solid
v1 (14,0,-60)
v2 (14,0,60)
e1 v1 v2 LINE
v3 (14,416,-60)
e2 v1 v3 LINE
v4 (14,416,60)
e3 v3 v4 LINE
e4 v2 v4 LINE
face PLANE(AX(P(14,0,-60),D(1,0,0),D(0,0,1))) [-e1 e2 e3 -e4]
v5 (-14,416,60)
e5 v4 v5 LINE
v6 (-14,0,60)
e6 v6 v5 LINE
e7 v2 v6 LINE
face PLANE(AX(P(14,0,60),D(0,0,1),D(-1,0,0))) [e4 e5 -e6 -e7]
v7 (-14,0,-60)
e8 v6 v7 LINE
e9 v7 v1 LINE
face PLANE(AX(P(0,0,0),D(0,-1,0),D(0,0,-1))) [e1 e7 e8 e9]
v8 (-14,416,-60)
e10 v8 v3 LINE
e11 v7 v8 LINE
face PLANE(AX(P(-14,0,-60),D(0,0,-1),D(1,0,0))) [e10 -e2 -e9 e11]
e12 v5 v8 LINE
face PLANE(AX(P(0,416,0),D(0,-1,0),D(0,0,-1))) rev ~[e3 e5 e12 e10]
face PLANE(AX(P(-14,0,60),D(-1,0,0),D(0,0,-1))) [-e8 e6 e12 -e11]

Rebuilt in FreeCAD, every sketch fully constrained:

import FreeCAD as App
import Part
import Sketcher

doc = App.newDocument("Part")
body = doc.addObject("PartDesign::Body", "Body")

sketch1 = body.newObject("Sketcher::SketchObject", "Sketch")
sketch1.AttachmentSupport = (doc.getObject("XZ_Plane"), [""])
sketch1.MapMode = "FlatFace"
sketch1.addGeometry(Part.LineSegment(App.Vector(-14, 60, 0), App.Vector(-14, -60, 0)), False)
sketch1.addGeometry(Part.LineSegment(App.Vector(-14, -60, 0), App.Vector(14, -60, 0)), False)
sketch1.addGeometry(Part.LineSegment(App.Vector(14, -60, 0), App.Vector(14, 60, 0)), False)
sketch1.addGeometry(Part.LineSegment(App.Vector(14, 60, 0), App.Vector(-14, 60, 0)), False)
sketch1.addConstraint(Sketcher.Constraint("Coincident", 0, 2, 1, 1))
sketch1.addConstraint(Sketcher.Constraint("Coincident", 1, 2, 2, 1))
sketch1.addConstraint(Sketcher.Constraint("Coincident", 2, 2, 3, 1))
sketch1.addConstraint(Sketcher.Constraint("Coincident", 3, 2, 0, 1))
sketch1.addConstraint(Sketcher.Constraint("Vertical", 0))
sketch1.addConstraint(Sketcher.Constraint("Horizontal", 1))
sketch1.addConstraint(Sketcher.Constraint("Vertical", 2))
sketch1.addConstraint(Sketcher.Constraint("Horizontal", 3))
sketch1.addConstraint(Sketcher.Constraint("Symmetric", 0, 2, 2, 2, -1, 1))
sketch1.addConstraint(Sketcher.Constraint("DistanceX", 1, 1, 1, 2, 28.0))
sketch1.addConstraint(Sketcher.Constraint("DistanceY", 0, 2, 0, 1, 120.0))
pad1 = body.newObject("PartDesign::Pad", "Pad")
pad1.Profile = sketch1
pad1.Length = 416
pad1.Reversed = True

doc.recompute()
